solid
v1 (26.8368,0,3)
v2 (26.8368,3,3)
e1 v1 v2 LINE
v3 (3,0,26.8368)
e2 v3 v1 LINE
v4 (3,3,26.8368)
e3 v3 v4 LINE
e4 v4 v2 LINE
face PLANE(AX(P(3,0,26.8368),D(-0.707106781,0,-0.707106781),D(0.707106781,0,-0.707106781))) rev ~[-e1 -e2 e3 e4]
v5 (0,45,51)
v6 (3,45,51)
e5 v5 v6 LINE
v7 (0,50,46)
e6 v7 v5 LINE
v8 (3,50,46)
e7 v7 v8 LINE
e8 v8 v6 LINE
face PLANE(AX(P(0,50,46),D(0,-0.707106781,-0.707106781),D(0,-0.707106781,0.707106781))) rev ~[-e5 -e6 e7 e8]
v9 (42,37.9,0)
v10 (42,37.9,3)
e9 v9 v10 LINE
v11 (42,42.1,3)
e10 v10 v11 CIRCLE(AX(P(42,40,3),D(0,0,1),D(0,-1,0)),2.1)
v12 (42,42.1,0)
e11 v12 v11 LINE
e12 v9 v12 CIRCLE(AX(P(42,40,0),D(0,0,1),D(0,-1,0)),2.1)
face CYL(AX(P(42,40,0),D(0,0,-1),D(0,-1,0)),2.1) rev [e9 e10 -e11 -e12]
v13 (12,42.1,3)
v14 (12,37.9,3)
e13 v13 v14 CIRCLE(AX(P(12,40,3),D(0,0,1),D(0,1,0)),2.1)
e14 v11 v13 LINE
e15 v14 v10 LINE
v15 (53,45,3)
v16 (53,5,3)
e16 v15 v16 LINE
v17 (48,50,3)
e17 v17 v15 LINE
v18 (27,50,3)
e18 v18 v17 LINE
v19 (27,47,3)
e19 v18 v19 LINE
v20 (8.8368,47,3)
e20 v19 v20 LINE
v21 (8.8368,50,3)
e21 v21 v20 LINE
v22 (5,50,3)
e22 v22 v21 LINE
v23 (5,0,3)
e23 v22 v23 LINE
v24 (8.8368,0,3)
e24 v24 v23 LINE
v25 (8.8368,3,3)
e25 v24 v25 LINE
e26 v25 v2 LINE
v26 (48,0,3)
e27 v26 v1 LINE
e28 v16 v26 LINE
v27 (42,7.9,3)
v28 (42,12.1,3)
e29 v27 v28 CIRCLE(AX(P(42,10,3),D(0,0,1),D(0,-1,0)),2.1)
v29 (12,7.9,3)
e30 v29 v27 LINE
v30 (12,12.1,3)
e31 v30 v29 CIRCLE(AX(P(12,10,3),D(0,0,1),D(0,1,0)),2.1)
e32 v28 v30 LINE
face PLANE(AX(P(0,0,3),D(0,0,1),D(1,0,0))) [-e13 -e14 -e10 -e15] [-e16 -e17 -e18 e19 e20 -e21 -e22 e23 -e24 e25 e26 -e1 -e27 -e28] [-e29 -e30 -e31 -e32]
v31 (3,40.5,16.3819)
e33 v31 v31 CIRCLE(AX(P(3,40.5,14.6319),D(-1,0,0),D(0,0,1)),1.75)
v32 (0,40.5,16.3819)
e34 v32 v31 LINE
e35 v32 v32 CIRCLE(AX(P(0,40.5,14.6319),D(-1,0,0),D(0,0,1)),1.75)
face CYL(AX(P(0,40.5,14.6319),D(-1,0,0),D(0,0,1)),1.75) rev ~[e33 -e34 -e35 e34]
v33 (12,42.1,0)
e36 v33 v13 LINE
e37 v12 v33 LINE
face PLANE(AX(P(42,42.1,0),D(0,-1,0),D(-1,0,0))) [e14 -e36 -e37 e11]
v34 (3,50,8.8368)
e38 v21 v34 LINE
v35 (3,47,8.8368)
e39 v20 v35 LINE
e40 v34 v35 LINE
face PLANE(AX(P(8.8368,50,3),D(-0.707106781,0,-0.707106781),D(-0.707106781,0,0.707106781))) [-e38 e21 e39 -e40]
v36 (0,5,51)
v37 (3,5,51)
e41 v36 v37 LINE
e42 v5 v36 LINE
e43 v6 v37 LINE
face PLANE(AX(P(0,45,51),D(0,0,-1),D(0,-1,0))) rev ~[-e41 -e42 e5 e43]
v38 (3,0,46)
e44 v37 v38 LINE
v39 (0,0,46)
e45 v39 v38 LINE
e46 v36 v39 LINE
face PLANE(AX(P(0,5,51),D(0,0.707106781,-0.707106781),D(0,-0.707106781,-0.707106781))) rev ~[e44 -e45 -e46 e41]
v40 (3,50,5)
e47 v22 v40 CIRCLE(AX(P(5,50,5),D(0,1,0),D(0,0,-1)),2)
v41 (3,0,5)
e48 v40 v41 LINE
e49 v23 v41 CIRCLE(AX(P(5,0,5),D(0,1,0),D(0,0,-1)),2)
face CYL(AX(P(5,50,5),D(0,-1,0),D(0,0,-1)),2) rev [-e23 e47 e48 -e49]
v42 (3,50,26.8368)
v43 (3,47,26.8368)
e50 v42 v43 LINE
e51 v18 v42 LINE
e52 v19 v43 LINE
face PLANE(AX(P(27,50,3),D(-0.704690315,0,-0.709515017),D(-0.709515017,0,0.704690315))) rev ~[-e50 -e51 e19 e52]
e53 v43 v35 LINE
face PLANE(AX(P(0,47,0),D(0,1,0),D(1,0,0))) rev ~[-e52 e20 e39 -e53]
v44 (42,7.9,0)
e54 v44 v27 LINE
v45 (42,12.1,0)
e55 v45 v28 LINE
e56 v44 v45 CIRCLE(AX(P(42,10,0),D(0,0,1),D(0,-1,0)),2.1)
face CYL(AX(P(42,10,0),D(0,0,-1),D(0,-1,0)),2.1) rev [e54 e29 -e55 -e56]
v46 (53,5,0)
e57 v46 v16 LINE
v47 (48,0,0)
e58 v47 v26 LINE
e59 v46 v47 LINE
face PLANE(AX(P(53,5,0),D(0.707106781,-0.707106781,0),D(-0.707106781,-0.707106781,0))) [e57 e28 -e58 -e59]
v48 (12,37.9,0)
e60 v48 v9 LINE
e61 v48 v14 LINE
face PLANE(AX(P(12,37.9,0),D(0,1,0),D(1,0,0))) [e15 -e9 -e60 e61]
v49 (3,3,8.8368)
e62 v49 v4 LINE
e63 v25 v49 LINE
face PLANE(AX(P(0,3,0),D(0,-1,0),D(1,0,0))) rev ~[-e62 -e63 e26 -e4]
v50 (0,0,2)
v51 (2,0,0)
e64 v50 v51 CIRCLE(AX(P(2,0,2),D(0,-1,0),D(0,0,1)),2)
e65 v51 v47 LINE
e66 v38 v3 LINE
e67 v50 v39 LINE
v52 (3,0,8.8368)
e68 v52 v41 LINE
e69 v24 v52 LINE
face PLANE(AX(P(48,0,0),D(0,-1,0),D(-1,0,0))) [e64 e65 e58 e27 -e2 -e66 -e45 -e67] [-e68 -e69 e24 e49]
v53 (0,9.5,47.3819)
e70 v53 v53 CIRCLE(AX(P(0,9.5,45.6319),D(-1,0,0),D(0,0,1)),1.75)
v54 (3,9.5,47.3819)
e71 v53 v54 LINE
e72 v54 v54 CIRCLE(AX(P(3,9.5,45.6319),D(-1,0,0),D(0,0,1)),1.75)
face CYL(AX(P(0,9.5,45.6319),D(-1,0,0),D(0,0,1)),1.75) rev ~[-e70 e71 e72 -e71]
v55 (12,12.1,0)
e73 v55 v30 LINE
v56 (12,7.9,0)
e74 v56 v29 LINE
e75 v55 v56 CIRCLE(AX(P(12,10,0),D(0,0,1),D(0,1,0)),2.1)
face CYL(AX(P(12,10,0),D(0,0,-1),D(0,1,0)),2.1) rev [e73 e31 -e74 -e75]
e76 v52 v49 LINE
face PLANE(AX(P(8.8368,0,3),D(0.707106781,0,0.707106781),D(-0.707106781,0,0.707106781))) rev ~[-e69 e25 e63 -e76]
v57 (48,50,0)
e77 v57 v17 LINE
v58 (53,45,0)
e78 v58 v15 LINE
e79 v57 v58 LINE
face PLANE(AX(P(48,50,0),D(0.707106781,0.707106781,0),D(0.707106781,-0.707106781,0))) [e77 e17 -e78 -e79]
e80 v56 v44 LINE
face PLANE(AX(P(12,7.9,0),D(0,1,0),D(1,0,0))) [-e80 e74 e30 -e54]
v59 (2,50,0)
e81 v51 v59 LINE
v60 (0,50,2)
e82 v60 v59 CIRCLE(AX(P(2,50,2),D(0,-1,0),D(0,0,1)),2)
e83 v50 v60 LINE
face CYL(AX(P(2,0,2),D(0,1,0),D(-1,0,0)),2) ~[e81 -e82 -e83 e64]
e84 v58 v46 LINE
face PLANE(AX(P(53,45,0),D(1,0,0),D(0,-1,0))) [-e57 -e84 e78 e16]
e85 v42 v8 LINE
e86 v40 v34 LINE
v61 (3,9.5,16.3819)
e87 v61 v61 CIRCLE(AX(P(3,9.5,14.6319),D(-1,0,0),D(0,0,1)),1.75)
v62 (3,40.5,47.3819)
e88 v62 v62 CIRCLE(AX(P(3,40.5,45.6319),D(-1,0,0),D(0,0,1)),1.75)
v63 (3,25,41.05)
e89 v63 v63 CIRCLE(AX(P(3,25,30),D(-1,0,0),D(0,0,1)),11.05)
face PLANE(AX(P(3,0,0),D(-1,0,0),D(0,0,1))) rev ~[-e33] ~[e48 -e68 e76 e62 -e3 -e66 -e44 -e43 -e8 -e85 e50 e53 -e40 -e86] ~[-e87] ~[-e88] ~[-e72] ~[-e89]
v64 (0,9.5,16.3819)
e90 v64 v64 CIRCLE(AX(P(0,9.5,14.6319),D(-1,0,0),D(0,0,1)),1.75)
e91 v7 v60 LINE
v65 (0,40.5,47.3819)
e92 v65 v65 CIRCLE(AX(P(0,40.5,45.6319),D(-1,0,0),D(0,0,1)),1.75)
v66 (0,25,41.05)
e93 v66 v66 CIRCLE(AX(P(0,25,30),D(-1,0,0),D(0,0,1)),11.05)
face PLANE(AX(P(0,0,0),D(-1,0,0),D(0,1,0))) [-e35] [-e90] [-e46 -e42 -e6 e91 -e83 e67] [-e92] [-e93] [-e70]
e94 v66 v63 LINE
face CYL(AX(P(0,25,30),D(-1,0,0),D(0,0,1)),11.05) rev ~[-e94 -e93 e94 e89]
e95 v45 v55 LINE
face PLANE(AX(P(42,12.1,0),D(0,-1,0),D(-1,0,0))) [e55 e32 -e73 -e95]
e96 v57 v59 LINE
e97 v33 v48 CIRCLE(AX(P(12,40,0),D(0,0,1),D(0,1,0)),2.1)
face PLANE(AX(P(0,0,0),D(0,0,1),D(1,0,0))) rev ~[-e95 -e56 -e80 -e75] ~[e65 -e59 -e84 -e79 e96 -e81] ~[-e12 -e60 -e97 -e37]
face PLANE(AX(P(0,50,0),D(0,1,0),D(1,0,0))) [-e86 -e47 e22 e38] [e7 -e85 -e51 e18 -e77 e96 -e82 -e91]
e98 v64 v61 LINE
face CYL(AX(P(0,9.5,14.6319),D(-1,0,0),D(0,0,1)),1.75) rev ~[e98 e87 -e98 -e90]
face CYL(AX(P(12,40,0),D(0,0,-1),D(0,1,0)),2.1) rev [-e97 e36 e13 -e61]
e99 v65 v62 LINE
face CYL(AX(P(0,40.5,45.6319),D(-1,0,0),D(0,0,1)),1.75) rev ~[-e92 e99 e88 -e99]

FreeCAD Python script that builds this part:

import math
import FreeCAD as App
import Part
import Sketcher
from FreeCAD import Vector
Q = App.Units.Quantity


def edges_at(feature, points):
    """Names of the edges that pass closest to the given points."""
    edges = feature.Shape.Edges
    near = lambda p: min(range(len(edges)), key=lambda i: edges[i].distToShape(Part.Vertex(*p))[0])
    return sorted({f"Edge{near(p) + 1}" for p in points})


def add_polygon(sketch, points):
    """Adds a closed chain of lines whose ends are joined by coincident constraints."""
    first, n = sketch.GeometryCount, len(points)
    for a, b in zip(points, points[1:] + points[:1]):
        sketch.addGeometry(Part.LineSegment(App.Vector(*a, 0), App.Vector(*b, 0)), False)
    for i in range(n):
        sketch.addConstraint(Sketcher.Constraint("Coincident", first + i, 2, first + (i + 1) % n, 1))

doc = App.newDocument("Part")
body = doc.addObject("PartDesign::Body", "Body")

# Sketch on XY plane
sketch1 = doc.addObject("Sketcher::SketchObject", "Sketch")
body.addObject(sketch1)
sketch1.AttachmentSupport = (doc.XY_Plane, [""])
sketch1.MapMode = "FlatFace"
add_polygon(sketch1, [(0, 50), (0, 0), (48, 0), (53, 5), (53, 45), (48, 50)])  # lines 0-5
sketch1.addGeometry(Part.LineSegment(Vector(42, 7.9, 0), Vector(12, 7.9, 0)), False)  # 6
sketch1.addGeometry(Part.ArcOfCircle(Part.Circle(Vector(12, 10, 0), Vector(0, 0, 1), 2.1), math.radians(90), math.radians(270)), False)  # 7
sketch1.addGeometry(Part.LineSegment(Vector(12, 12.1, 0), Vector(42, 12.1, 0)), False)  # 8
sketch1.addGeometry(Part.ArcOfCircle(Part.Circle(Vector(42, 10, 0), Vector(0, 0, 1), 2.1), math.radians(-90), math.radians(90)), False)  # 9
sketch1.addGeometry(Part.LineSegment(Vector(42, 37.9, 0), Vector(12, 37.9, 0)), False)  # 10
sketch1.addGeometry(Part.ArcOfCircle(Part.Circle(Vector(12, 40, 0), Vector(0, 0, 1), 2.1), math.radians(90), math.radians(270)), False)  # 11
sketch1.addGeometry(Part.LineSegment(Vector(12, 42.1, 0), Vector(42, 42.1, 0)), False)  # 12
sketch1.addGeometry(Part.ArcOfCircle(Part.Circle(Vector(42, 40, 0), Vector(0, 0, 1), 2.1), math.radians(-90), math.radians(90)), False)  # 13
sketch1.addConstraint(Sketcher.Constraint("Tangent", 6, 2, 7, 2))
sketch1.addConstraint(Sketcher.Constraint("Tangent", 7, 1, 8, 1))
sketch1.addConstraint(Sketcher.Constraint("Tangent", 8, 2, 9, 2))
sketch1.addConstraint(Sketcher.Constraint("Tangent", 9, 1, 6, 1))
sketch1.addConstraint(Sketcher.Constraint("Tangent", 10, 2, 11, 2))
sketch1.addConstraint(Sketcher.Constraint("Tangent", 11, 1, 12, 1))
sketch1.addConstraint(Sketcher.Constraint("Tangent", 12, 2, 13, 2))
sketch1.addConstraint(Sketcher.Constraint("Tangent", 13, 1, 10, 1))
sketch1.addConstraint(Sketcher.Constraint("Vertical", 0))
sketch1.addConstraint(Sketcher.Constraint("Horizontal", 1))
sketch1.addConstraint(Sketcher.Constraint("Vertical", 3))
sketch1.addConstraint(Sketcher.Constraint("Horizontal", 5))
sketch1.addConstraint(Sketcher.Constraint("Horizontal", 6))
sketch1.addConstraint(Sketcher.Constraint("Horizontal", 8))
sketch1.addConstraint(Sketcher.Constraint("Horizontal", 10))
sketch1.addConstraint(Sketcher.Constraint("Horizontal", 12))
sketch1.addConstraint(Sketcher.Constraint("Coincident", 0, 2, -1, 1))
sketch1.addConstraint(Sketcher.Constraint("Equal", 9, 11))
sketch1.addConstraint(Sketcher.Constraint("Perpendicular", 2, 4))
sketch1.addConstraint(Sketcher.Constraint("Vertical", 7, 3, 11, 3))
sketch1.addConstraint(Sketcher.Constraint("Vertical", 9, 3, 13, 3))
sketch1.addConstraint(Sketcher.Constraint("Vertical", 1, 2, 4, 2))
sketch1.addConstraint(Sketcher.Constraint("Equal", 2, 4))
sketch1.addConstraint(Sketcher.Constraint("Radius", 7, 2.1))
sketch1.addConstraint(Sketcher.Constraint("DistanceX", 6, 2, 6, 1, 30.0))
sketch1.addConstraint(Sketcher.Constraint("DistanceY", 0, 2, 0, 1, 50.0))
sketch1.addConstraint(Sketcher.Constraint("DistanceY", -1, 1, 7, 3, 10.0))
sketch1.addConstraint(Sketcher.Constraint("DistanceX", -1, 1, 2, 2, 53.0))
sketch1.addConstraint(Sketcher.Constraint("DistanceY", -1, 1, 2, 2, 5.0))
sketch1.addConstraint(Sketcher.Constraint("DistanceY", 7, 3, 11, 3, 30.0))
sketch1.addConstraint(Sketcher.Constraint("DistanceX", 9, 3, 2, 2, 11.0))
pad1 = doc.addObject("PartDesign::Pad", "Pad")
body.addObject(pad1)
pad1.Profile = sketch1
pad1.Length = 3

# Sketch on YZ plane
sketch2 = doc.addObject("Sketcher::SketchObject", "Sketch001")
body.addObject(sketch2)
sketch2.AttachmentSupport = (doc.YZ_Plane, [""])
sketch2.MapMode = "FlatFace"
add_polygon(sketch2, [(50, 46), (50, 0), (0, 0), (0, 46), (5, 51), (45, 51)])  # lines 0-5
sketch2.addGeometry(Part.Circle(Vector(9.5, 14.6, 0), Vector(0, 0, 1), 1.8), False)  # 6
sketch2.addGeometry(Part.Circle(Vector(9.5, 45.6, 0), Vector(0, 0, 1), 1.8), False)  # 7
sketch2.addGeometry(Part.Circle(Vector(40.5, 14.6, 0), Vector(0, 0, 1), 1.8), False)  # 8
sketch2.addGeometry(Part.Circle(Vector(25, 30, 0), Vector(0, 0, 1), 11.1), False)  # 9
sketch2.addGeometry(Part.Circle(Vector(40.5, 45.6, 0), Vector(0, 0, 1), 1.8), False)  # 10
sketch2.addConstraint(Sketcher.Constraint("Vertical", 0))
sketch2.addConstraint(Sketcher.Constraint("Horizontal", 1))
sketch2.addConstraint(Sketcher.Constraint("Vertical", 2))
sketch2.addConstraint(Sketcher.Constraint("Horizontal", 4))
sketch2.addConstraint(Sketcher.Constraint("Coincident", 1, 2, -1, 1))
sketch2.addConstraint(Sketcher.Constraint("Equal", 6, 7))
sketch2.addConstraint(Sketcher.Constraint("Equal", 7, 8))
sketch2.addConstraint(Sketcher.Constraint("Equal", 8, 10))
sketch2.addConstraint(Sketcher.Constraint("Perpendicular", 3, 5))
sketch2.addConstraint(Sketcher.Constraint("Horizontal", 6, 3, 8, 3))
sketch2.addConstraint(Sketcher.Constraint("Horizontal", 7, 3, 10, 3))
sketch2.addConstraint(Sketcher.Constraint("Horizontal", 2, 2, 5, 2))
sketch2.addConstraint(Sketcher.Constraint("Vertical", 6, 3, 7, 3))
sketch2.addConstraint(Sketcher.Constraint("Vertical", 8, 3, 10, 3))
sketch2.addConstraint(Sketcher.Constraint("Equal", 3, 5))
sketch2.addConstraint(Sketcher.Constraint("Diameter", 6, 3.5))
sketch2.addConstraint(Sketcher.Constraint("Diameter", 9, 22.1))
sketch2.addConstraint(Sketcher.Constraint("DistanceX", -1, 1, 3, 2, 5.0))
sketch2.addConstraint(Sketcher.Constraint("DistanceY", -1, 1, 3, 2, 51.0))
sketch2.addConstraint(Sketcher.Constraint("DistanceY", 6, 3, 7, 3, 31.0))
sketch2.addConstraint(Sketcher.Constraint("DistanceX", 6, 3, 8, 3, 31.0))
sketch2.addConstraint(Sketcher.Constraint("DistanceY", 9, 3, 3, 2, 21.0))
sketch2.addConstraint(Sketcher.Constraint("DistanceX", 6, 3, 9, 3, 15.5))
sketch2.addConstraint(Sketcher.Constraint("DistanceX", 1, 2, 1, 1, 50.0))
sketch2.addConstraint(Sketcher.Constraint("DistanceX", -1, 1, 9, 3, 25.0))
sketch2.addConstraint(Sketcher.Constraint("DistanceY", -1, 1, 6, 3, 14.632))
pad2 = doc.addObject("PartDesign::Pad", "Pad001")
body.addObject(pad2)
pad2.Profile = sketch2
pad2.Length = 3

# Sketch on XZ plane
sketch3 = doc.addObject("Sketcher::SketchObject", "Sketch002")
body.addObject(sketch3)
sketch3.AttachmentSupport = (doc.XZ_Plane, [""])
sketch3.MapMode = "FlatFace"
add_polygon(sketch3, [(3, 9), (9, 3), (27, 3), (3, 27)])  # lines 0-3
sketch3.addConstraint(Sketcher.Constraint("Horizontal", 1))
sketch3.addConstraint(Sketcher.Constraint("Vertical", 3))
sketch3.addConstraint(Sketcher.Constraint("Parallel", 0, 2))
sketch3.addConstraint(Sketcher.Constraint("Equal", 1, 3))
sketch3.addConstraint(Sketcher.Constraint("DistanceX", 1, 1, 1, 2, 18.0))
sketch3.addConstraint(Sketcher.Constraint("DistanceY", -1, 1, 0, 2, 3.0))
sketch3.addConstraint(Sketcher.Constraint("DistanceX", -1, 1, 2, 2, 3.0))
sketch3.addConstraint(Sketcher.Constraint("Distance", 0, 8.2545))
pad3 = doc.addObject("PartDesign::Pad", "Pad002")
body.addObject(pad3)
pad3.Profile = sketch3
pad3.Length = 3
pad3.Reversed = True

# Sketch on XZ plane
sketch4 = doc.addObject("Sketcher::SketchObject", "Sketch003")
body.addObject(sketch4)
sketch4.AttachmentSupport = (doc.XZ_Plane, [""])
sketch4.MapMode = "FlatFace"
sketch4.AttachmentOffset = App.Placement(Vector(0, 0, -50), App.Rotation())
add_polygon(sketch4, [(3, 27), (27, 3), (9, 3), (3, 9)])  # lines 0-3
sketch4.addConstraint(Sketcher.Constraint("Horizontal", 1))
sketch4.addConstraint(Sketcher.Constraint("Vertical", 3))
sketch4.addConstraint(Sketcher.Constraint("DistanceY", 3, 1, 3, 2, 18.0))
sketch4.addConstraint(Sketcher.Constraint("Angle", 2, Q("135 deg")))
sketch4.addConstraint(Sketcher.Constraint("DistanceX", -1, 1, 0, 2, 27.0))
sketch4.addConstraint(Sketcher.Constraint("DistanceY", -1, 1, 0, 2, 3.0))
sketch4.addConstraint(Sketcher.Constraint("DistanceX", -1, 1, 2, 2, 3.0))
sketch4.addConstraint(Sketcher.Constraint("Distance", 0, 33.826))
pad4 = doc.addObject("PartDesign::Pad", "Pad003")
body.addObject(pad4)
pad4.Profile = sketch4
pad4.Length = 3
doc.recompute()

fillet = doc.addObject("PartDesign::Fillet", "Fillet")
body.addObject(fillet)
fillet.Base = (pad4, edges_at(pad4, [(0, 25, 0), (3, 25, 3)]))
fillet.Radius = 2

doc.recompute()
